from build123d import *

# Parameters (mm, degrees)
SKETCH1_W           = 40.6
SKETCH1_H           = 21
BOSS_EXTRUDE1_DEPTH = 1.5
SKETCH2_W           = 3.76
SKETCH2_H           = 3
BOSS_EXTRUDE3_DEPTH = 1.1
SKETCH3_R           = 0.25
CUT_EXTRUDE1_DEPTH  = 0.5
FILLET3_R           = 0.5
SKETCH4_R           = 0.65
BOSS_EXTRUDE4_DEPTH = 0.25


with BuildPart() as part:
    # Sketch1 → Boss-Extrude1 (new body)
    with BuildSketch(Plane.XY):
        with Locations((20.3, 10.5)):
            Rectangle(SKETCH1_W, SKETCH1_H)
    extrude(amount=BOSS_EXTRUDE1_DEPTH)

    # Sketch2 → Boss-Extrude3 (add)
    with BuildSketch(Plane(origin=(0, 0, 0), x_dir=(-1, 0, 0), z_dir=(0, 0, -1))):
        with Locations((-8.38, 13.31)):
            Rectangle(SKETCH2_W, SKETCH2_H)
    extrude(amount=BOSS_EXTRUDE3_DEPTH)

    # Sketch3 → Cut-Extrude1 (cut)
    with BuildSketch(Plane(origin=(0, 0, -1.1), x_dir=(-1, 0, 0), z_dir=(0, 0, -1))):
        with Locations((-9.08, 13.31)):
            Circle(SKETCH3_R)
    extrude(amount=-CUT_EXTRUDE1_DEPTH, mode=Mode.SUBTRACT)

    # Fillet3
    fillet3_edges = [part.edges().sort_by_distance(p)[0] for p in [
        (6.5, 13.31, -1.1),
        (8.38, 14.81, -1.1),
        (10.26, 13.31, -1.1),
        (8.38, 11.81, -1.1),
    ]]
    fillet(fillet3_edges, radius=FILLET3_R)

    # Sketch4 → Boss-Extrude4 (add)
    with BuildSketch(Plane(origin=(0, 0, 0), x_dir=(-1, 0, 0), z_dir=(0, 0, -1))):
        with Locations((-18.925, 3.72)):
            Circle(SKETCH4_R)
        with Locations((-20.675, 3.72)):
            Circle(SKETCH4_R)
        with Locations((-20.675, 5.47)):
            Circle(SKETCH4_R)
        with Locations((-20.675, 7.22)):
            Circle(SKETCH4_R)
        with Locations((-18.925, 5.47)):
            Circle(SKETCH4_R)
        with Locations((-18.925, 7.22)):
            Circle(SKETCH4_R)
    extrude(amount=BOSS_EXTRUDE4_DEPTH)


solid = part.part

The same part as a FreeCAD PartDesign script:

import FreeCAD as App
import Part
import Sketcher

V = App.Vector
Q = App.Units.Quantity


def edges_at(feature, points):
    """Names of the edges that pass closest to the given points."""
    edges = feature.Shape.Edges
    near = lambda p: min(range(len(edges)), key=lambda i: edges[i].distToShape(Part.Vertex(*p))[0])
    return sorted({f"Edge{near(p) + 1}" for p in points})


def add_polygon(sketch, points):
    """Adds a closed chain of lines whose ends are joined by coincident constraints."""
    first, n = sketch.GeometryCount, len(points)
    for a, b in zip(points, points[1:] + points[:1]):
        sketch.addGeometry(Part.LineSegment(App.Vector(*a, 0), App.Vector(*b, 0)), False)
    for i in range(n):
        sketch.addConstraint(Sketcher.Constraint("Coincident", first + i, 2, first + (i + 1) % n, 1))

doc = App.newDocument("Part")
body = doc.addObject("PartDesign::Body", "Body")

sketch1 = body.newObject("Sketcher::SketchObject", "Sketch")
sketch1.AttachmentSupport = (doc.getObject("XY_Plane"), [""])
sketch1.MapMode = "FlatFace"
add_polygon(sketch1, [(0, 21), (0, 0), (41, 0), (41, 21)])
sketch1.addConstraint([
    Sketcher.Constraint("Vertical", 0),
    Sketcher.Constraint("Horizontal", 1),
    Sketcher.Constraint("Vertical", 2),
    Sketcher.Constraint("Horizontal", 3),
    Sketcher.Constraint("Coincident", 0, 2, -1, 1),
    Sketcher.Constraint("DistanceY", 0, 2, 0, 1, Q("21 mm")),
    Sketcher.Constraint("DistanceX", 1, 1, 1, 2, Q("40.6 mm")),
])
pad1 = body.newObject("PartDesign::Pad", "Pad")
pad1.Profile = sketch1
pad1.Length = 1.5

sketch2 = body.newObject("Sketcher::SketchObject", "Sketch001")
sketch2.AttachmentSupport = (doc.getObject("XY_Plane"), [""])
sketch2.MapMode = "FlatFace"
add_polygon(sketch2, [(10.3, 14.8), (10.3, 11.8), (6.5, 11.8), (6.5, 14.8)])
sketch2.addConstraint([
    Sketcher.Constraint("Vertical", 0),
    Sketcher.Constraint("Horizontal", 1),
    Sketcher.Constraint("Vertical", 2),
    Sketcher.Constraint("Horizontal", 3),
    Sketcher.Constraint("DistanceY", 0, 2, 0, 1, Q("3 mm")),
    Sketcher.Constraint("DistanceX", 1, 2, 1, 1, Q("3.76 mm")),
    Sketcher.Constraint("DistanceX", -1, 1, 1, 2, Q("6.5 mm")),
    Sketcher.Constraint("DistanceY", -1, 1, 0, 2, Q("11.81 mm")),
])
pad2 = body.newObject("PartDesign::Pad", "Pad001")
pad2.Profile = sketch2
pad2.Length = 1.1
pad2.Reversed = True

sketch3 = body.newObject("Sketcher::SketchObject", "Sketch002")
sketch3.AttachmentSupport = (doc.getObject("XY_Plane"), [""])
sketch3.MapMode = "FlatFace"
sketch3.AttachmentOffset = App.Placement(V(0, 0, -1.1), App.Rotation())
sketch3.addGeometry(Part.Circle(V(9.08, 13.31, 0), V(0, 0, 1), 0.25), False)
sketch3.addConstraint([
    Sketcher.Constraint("Diameter", 0, Q("0.5 mm")),
    Sketcher.Constraint("DistanceX", -1, 1, 0, 3, Q("9.08 mm")),
    Sketcher.Constraint("DistanceY", -1, 1, 0, 3, Q("13.31 mm")),
])
pocket1 = body.newObject("PartDesign::Pocket", "Pocket")
pocket1.Profile = sketch3
pocket1.Length = 0.5
pocket1.Reversed = True
doc.recompute()

fillet = body.newObject("PartDesign::Fillet", "Fillet")
fillet.Base = (pocket1, edges_at(pocket1, [
    (6.5, 13.31, -1.1),
    (8.38, 14.81, -1.1),
    (10.26, 13.31, -1.1),
    (8.38, 11.81, -1.1),
]))
fillet.Radius = 0.5

sketch4 = body.newObject("Sketcher::SketchObject", "Sketch003")
sketch4.AttachmentSupport = (doc.getObject("XY_Plane"), [""])
sketch4.MapMode = "FlatFace"
sketch4.addGeometry([
    Part.Circle(V(18.9, 3.7, 0), V(0, 0, 1), 0.7),
    Part.Circle(V(20.7, 3.7, 0), V(0, 0, 1), 0.7),
    Part.Circle(V(20.7, 5.5, 0), V(0, 0, 1), 0.7),
    Part.Circle(V(20.7, 7.2, 0), V(0, 0, 1), 0.7),
    Part.Circle(V(18.9, 5.5, 0), V(0, 0, 1), 0.7),
    Part.Circle(V(18.9, 7.2, 0), V(0, 0, 1), 0.7),
], False)
sketch4.addConstraint([
    Sketcher.Constraint("Equal", 0, 1),
    Sketcher.Constraint("Equal", 1, 2),
    Sketcher.Constraint("Equal", 2, 3),
    Sketcher.Constraint("Equal", 3, 4),
    Sketcher.Constraint("Equal", 4, 5),
    Sketcher.Constraint("Horizontal", 0, 3, 1, 3),
    Sketcher.Constraint("Horizontal", 2, 3, 4, 3),
    Sketcher.Constraint("Horizontal", 3, 3, 5, 3),
    Sketcher.Constraint("Vertical", 1, 3, 2, 3),
    Sketcher.Constraint("Vertical", 2, 3, 3, 3),
    Sketcher.Constraint("Vertical", 0, 3, 4, 3),
    Sketcher.Constraint("Vertical", 4, 3, 5, 3),
    Sketcher.Constraint("Diameter", 0, Q("1.3 mm")),
    Sketcher.Constraint("DistanceY", 1, 3, 3, 3, Q("3.5 mm")),
    Sketcher.Constraint("DistanceY", -1, 1, 0, 3, Q("3.72 mm")),
    Sketcher.Constraint("DistanceY", -1, 1, 2, 3, Q("5.47 mm")),
    Sketcher.Constraint("DistanceX", 0, 3, 1, 3, Q("1.75 mm")),
    Sketcher.Constraint("DistanceX", -1, 1, 0, 3, Q("18.925 mm")),
])
pad3 = body.newObject("PartDesign::Pad", "Pad002")
pad3.Profile = sketch4
pad3.Length = 0.25
pad3.Reversed = True

doc.recompute()
